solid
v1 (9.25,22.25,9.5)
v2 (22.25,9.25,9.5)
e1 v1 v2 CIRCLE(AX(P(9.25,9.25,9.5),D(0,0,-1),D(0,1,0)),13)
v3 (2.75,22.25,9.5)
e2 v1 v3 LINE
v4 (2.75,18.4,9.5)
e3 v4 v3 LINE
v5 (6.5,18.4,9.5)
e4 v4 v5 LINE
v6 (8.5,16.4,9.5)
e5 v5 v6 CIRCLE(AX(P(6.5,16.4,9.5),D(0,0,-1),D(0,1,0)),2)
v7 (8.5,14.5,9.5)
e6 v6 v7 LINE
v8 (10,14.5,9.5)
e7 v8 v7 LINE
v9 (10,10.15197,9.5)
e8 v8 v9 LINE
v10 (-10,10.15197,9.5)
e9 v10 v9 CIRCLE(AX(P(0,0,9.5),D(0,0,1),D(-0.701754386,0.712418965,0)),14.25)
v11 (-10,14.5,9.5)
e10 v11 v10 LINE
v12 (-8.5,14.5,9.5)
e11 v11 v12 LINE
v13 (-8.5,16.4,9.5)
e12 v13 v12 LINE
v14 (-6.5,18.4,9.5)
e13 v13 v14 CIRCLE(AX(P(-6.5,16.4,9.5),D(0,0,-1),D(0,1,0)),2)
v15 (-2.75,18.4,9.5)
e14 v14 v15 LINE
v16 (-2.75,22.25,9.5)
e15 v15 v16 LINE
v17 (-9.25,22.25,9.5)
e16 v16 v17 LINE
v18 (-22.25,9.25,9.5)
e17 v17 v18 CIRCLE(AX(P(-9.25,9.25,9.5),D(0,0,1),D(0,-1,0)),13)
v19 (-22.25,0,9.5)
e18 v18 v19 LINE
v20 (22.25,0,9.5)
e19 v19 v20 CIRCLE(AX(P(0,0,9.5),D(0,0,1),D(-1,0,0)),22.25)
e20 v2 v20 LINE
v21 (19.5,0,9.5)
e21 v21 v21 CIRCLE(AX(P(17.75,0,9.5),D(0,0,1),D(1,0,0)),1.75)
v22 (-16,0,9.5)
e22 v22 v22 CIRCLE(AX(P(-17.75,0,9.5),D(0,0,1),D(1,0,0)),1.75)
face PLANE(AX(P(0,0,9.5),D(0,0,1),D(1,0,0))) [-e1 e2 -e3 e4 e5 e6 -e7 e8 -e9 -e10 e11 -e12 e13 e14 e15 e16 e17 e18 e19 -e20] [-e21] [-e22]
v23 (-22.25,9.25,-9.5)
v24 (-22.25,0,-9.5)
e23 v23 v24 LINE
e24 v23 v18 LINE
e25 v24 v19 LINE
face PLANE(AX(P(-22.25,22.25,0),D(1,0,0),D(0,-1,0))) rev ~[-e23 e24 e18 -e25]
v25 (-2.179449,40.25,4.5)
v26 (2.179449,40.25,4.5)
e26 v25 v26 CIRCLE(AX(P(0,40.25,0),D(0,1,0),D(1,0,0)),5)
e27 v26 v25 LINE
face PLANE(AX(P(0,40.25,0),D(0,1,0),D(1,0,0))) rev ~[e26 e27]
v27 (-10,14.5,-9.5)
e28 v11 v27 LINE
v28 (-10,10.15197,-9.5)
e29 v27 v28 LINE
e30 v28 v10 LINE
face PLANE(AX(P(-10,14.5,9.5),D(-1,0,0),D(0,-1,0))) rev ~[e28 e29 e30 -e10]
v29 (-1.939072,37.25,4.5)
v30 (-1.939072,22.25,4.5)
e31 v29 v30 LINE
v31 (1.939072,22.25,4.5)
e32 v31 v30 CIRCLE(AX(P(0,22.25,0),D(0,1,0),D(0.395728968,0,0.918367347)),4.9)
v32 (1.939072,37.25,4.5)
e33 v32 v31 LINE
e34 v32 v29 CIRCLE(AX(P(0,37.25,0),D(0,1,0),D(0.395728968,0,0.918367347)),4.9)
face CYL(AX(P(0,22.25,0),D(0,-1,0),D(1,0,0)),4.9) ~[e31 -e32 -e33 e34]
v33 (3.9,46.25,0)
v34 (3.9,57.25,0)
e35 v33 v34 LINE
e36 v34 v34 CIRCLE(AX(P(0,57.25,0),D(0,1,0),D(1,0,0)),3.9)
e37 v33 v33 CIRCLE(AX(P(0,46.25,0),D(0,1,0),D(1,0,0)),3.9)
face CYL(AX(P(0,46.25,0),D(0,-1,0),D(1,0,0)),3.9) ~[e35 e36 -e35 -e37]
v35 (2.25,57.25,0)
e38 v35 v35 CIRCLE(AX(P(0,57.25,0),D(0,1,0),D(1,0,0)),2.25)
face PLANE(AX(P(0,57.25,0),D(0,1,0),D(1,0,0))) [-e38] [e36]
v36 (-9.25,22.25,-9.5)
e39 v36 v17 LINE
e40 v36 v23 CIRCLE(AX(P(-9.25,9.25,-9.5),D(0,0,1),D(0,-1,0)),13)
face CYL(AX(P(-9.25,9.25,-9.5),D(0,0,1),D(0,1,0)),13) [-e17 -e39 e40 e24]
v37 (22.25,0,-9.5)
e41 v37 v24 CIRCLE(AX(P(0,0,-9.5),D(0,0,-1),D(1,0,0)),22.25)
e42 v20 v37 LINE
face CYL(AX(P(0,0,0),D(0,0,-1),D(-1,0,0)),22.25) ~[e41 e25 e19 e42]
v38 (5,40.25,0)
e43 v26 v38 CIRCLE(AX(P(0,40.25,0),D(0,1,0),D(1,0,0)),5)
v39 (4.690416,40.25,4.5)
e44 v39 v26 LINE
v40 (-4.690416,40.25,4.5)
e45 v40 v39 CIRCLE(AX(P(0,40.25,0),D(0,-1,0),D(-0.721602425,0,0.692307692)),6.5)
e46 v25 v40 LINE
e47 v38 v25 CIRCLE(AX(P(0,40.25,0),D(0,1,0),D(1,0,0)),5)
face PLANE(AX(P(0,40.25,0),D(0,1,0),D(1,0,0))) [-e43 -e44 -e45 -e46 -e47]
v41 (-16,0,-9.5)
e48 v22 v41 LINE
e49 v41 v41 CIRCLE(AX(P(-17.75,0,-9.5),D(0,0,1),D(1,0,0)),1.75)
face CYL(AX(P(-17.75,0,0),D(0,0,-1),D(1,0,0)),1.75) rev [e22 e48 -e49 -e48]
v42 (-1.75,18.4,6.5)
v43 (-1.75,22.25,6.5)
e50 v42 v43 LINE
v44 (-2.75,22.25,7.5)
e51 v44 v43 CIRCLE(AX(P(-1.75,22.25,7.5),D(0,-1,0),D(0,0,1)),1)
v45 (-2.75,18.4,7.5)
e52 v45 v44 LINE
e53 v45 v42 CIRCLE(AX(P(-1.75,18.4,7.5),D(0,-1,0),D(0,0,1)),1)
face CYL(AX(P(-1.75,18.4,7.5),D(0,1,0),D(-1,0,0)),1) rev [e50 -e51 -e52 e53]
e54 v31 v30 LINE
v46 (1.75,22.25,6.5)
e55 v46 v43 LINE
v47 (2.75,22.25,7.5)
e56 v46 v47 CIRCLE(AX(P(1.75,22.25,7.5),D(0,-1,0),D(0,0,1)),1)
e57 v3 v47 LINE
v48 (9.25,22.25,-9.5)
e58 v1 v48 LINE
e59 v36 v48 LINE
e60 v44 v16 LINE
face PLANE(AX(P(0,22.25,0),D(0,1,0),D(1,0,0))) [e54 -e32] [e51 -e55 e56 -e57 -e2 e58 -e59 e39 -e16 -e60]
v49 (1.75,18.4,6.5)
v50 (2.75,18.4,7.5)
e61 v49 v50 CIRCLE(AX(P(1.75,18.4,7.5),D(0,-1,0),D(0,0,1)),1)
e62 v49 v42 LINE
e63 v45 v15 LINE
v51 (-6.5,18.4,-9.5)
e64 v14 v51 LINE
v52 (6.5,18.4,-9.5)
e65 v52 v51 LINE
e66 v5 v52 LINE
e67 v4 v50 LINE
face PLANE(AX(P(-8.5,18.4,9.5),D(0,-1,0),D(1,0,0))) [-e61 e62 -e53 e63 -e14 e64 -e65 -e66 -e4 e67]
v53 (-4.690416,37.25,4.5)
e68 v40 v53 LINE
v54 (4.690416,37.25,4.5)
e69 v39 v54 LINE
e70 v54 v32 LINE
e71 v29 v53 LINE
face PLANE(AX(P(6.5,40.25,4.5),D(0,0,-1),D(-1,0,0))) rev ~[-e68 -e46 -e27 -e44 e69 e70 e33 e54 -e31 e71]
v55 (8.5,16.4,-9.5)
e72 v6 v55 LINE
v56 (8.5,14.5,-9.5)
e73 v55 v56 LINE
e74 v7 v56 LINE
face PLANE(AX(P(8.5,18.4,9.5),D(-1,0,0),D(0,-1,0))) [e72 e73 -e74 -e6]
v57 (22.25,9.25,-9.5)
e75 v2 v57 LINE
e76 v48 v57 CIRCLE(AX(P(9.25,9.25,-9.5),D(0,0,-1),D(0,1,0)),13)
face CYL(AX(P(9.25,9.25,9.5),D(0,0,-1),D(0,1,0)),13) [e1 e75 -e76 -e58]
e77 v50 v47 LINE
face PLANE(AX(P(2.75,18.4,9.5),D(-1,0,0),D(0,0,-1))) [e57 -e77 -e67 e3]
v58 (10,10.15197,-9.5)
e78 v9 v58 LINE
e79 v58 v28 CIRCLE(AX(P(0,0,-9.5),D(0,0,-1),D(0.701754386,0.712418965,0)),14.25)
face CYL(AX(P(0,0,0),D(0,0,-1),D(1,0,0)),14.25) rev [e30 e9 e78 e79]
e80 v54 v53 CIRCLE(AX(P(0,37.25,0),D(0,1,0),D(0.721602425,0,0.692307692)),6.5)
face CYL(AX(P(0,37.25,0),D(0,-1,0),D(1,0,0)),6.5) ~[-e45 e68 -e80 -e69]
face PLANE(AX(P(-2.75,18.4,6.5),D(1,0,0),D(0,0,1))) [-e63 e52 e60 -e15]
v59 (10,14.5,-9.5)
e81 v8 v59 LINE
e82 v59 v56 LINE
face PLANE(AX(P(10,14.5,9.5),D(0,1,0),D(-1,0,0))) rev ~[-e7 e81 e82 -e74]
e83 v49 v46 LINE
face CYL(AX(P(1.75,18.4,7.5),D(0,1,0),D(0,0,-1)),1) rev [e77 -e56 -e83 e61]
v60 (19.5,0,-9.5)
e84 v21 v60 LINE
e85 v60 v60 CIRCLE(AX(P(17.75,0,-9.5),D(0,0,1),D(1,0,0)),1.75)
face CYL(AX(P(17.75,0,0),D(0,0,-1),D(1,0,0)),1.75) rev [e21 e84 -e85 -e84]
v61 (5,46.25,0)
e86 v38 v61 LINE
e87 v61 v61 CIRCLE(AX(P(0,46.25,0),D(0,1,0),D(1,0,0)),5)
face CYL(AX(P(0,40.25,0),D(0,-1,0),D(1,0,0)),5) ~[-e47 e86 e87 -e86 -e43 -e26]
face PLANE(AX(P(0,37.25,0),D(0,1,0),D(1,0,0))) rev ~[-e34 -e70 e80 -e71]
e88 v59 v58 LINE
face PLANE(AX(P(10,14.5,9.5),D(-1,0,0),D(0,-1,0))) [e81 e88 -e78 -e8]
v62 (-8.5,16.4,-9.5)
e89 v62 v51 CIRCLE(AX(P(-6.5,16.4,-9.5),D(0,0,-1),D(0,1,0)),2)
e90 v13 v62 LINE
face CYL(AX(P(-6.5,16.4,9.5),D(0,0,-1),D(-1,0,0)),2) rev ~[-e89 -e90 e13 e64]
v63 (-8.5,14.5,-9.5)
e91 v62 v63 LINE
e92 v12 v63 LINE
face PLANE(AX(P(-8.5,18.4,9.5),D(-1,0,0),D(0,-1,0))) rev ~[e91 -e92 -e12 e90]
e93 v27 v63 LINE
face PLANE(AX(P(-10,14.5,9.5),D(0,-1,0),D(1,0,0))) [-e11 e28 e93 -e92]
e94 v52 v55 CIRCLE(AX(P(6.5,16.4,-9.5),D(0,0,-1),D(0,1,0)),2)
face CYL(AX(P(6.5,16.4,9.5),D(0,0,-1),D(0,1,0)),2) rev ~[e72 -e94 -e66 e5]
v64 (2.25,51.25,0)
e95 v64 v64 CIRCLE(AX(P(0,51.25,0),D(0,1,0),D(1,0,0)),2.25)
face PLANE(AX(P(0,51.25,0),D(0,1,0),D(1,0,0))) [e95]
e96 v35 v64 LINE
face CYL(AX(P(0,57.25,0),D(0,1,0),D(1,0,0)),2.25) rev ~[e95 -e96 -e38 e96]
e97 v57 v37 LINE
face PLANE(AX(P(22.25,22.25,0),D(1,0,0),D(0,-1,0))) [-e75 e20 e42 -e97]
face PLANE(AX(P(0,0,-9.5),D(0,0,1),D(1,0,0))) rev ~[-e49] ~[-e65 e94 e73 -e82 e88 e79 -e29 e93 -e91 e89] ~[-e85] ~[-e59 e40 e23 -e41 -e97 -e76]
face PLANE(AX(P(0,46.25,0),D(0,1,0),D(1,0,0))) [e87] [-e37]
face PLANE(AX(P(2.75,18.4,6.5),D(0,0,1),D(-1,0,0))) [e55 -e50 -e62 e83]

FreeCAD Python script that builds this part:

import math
import FreeCAD as App
import Part
import Sketcher

V = App.Vector
Q = App.Units.Quantity


def edges_at(feature, points):
    """Names of the edges that pass closest to the given points."""
    edges = feature.Shape.Edges
    near = lambda p: min(range(len(edges)), key=lambda i: edges[i].distToShape(Part.Vertex(*p))[0])
    return sorted({f"Edge{near(p) + 1}" for p in points})

doc = App.newDocument("Part")
body = doc.addObject("PartDesign::Body", "Body")

# Sketch on XY plane
sketch1 = doc.addObject("Sketcher::SketchObject", "Sketch")
body.addObject(sketch1)
sketch1.AttachmentSupport = (doc.XY_Plane, [""])
sketch1.MapMode = "FlatFace"
sketch1.addGeometry([
    Part.LineSegment(V(22.2, 22.2, 0), V(-22.2, 22.2, 0)),  # 0
    Part.LineSegment(V(-22.2, 22.2, 0), V(-22.2, 0, 0)),  # 1
    Part.ArcOfCircle(Part.Circle(V(0, 0, 0), V(0, 0, 1), 22.2), math.radians(180), math.radians(360)),  # 2
    Part.LineSegment(V(22.2, 0, 0), V(22.2, 22.2, 0)),  # 3
    Part.Circle(V(0, 0, 0), V(0, 0, 1), 14.2),  # 4
    Part.Circle(V(17.8, 0, 0), V(0, 0, 1), 1.8),  # 5
    Part.Circle(V(-17.8, 0, 0), V(0, 0, 1), 1.8),  # 6
], False)
sketch1.addConstraint([
    Sketcher.Constraint("Coincident", 0, 2, 1, 1),
    Sketcher.Constraint("Tangent", 1, 2, 2, 1),
    Sketcher.Constraint("Tangent", 2, 2, 3, 1),
    Sketcher.Constraint("Coincident", 3, 2, 0, 1),
    Sketcher.Constraint("Horizontal", 0),
    Sketcher.Constraint("Vertical", 1),
    Sketcher.Constraint("Vertical", 3),
    Sketcher.Constraint("Coincident", 2, 3, -1, 1),
    Sketcher.Constraint("Coincident", 4, 3, -1, 1),
    Sketcher.Constraint("Equal", 5, 6),
    Sketcher.Constraint("Symmetric", 5, 3, 6, 3, -1, 1),
    Sketcher.Constraint("PointOnObject", 5, 3, -1),
    Sketcher.Constraint("Diameter", 4, Q("28.5 mm")),
    Sketcher.Constraint("Diameter", 5, Q("3.5 mm")),
    Sketcher.Constraint("Radius", 2, Q("22.25 mm")),
    Sketcher.Constraint("DistanceX", 0, 2, 5, 3, Q("40 mm")),
    Sketcher.Constraint("DistanceY", 1, 2, 1, 1, Q("22.25 mm")),
])
pad1 = doc.addObject("PartDesign::Pad", "Pad")
body.addObject(pad1)
pad1.Profile = sketch1
pad1.Length = 19
pad1.Midplane = True

# Sketch on XY plane
sketch2 = doc.addObject("Sketcher::SketchObject", "Sketch001")
body.addObject(sketch2)
sketch2.AttachmentSupport = (doc.XY_Plane, [""])
sketch2.MapMode = "FlatFace"
sketch2.AttachmentOffset = App.Placement(V(0, 0, 9.5), App.Rotation())
sketch2.addGeometry([
    Part.LineSegment(V(-8.5, 18.4, 0), V(-8.5, 14.5, 0)),  # 0
    Part.LineSegment(V(-8.5, 14.5, 0), V(-10, 14.5, 0)),  # 1
    Part.LineSegment(V(-10, 14.5, 0), V(-10, 10, 0)),  # 2
    Part.LineSegment(V(-10, 10, 0), V(-8.5, 10, 0)),  # 3
    Part.LineSegment(V(-8.5, 10, 0), V(-8.5, 11.4, 0)),  # 4
    Part.LineSegment(V(-8.5, 11.4, 0), V(8.5, 11.4, 0)),  # 5
    Part.LineSegment(V(8.5, 11.4, 0), V(8.5, 10, 0)),  # 6
    Part.LineSegment(V(8.5, 10, 0), V(10, 10, 0)),  # 7
    Part.LineSegment(V(10, 10, 0), V(10, 14.5, 0)),  # 8
    Part.LineSegment(V(10, 14.5, 0), V(8.5, 14.5, 0)),  # 9
    Part.LineSegment(V(8.5, 14.5, 0), V(8.5, 18.4, 0)),  # 10
    Part.LineSegment(V(8.5, 18.4, 0), V(-8.5, 18.4, 0)),  # 11
], False)
sketch2.addConstraint([
    Sketcher.Constraint("Coincident", 0, 2, 1, 1),
    Sketcher.Constraint("Coincident", 1, 2, 2, 1),
    Sketcher.Constraint("Coincident", 2, 2, 3, 1),
    Sketcher.Constraint("Coincident", 3, 2, 4, 1),
    Sketcher.Constraint("Coincident", 4, 2, 5, 1),
    Sketcher.Constraint("Coincident", 5, 2, 6, 1),
    Sketcher.Constraint("Coincident", 6, 2, 7, 1),
    Sketcher.Constraint("Coincident", 7, 2, 8, 1),
    Sketcher.Constraint("Coincident", 8, 2, 9, 1),
    Sketcher.Constraint("Coincident", 9, 2, 10, 1),
    Sketcher.Constraint("Coincident", 10, 2, 11, 1),
    Sketcher.Constraint("Coincident", 11, 2, 0, 1),
    Sketcher.Constraint("Vertical", 0),
    Sketcher.Constraint("Horizontal", 1),
    Sketcher.Constraint("Vertical", 2),
    Sketcher.Constraint("Horizontal", 3),
    Sketcher.Constraint("Vertical", 4),
    Sketcher.Constraint("Horizontal", 5),
    Sketcher.Constraint("Vertical", 6),
    Sketcher.Constraint("Horizontal", 7),
    Sketcher.Constraint("Vertical", 8),
    Sketcher.Constraint("Horizontal", 9),
    Sketcher.Constraint("Vertical", 10),
    Sketcher.Constraint("Horizontal", 11),
    Sketcher.Constraint("Symmetric", 3, 2, 6, 2, -2),
    Sketcher.Constraint("Symmetric", 1, 2, 8, 2, -2),
    Sketcher.Constraint("Vertical", 0, 2, 3, 2),
    Sketcher.Constraint("Vertical", 6, 2, 9, 2),
    Sketcher.Constraint("DistanceX", 5, 1, 5, 2, Q("17 mm")),
    Sketcher.Constraint("DistanceX", 1, 2, 1, 1, Q("1.5 mm")),
    Sketcher.Constraint("DistanceY", 2, 2, 2, 1, Q("4.5 mm")),
    Sketcher.Constraint("DistanceY", -1, 1, 2, 2, Q("10 mm")),
    Sketcher.Constraint("DistanceY", 5, 2, 10, 2, Q("7 mm")),
    Sketcher.Constraint("DistanceY", -1, 1, 4, 2, Q("11.4 mm")),
])
pocket1 = doc.addObject("PartDesign::Pocket", "Pocket")
body.addObject(pocket1)
pocket1.Profile = sketch2
pocket1.Length = 19

# Sketch on XZ plane
sketch3 = doc.addObject("Sketcher::SketchObject", "Sketch002")
body.addObject(sketch3)
sketch3.AttachmentSupport = (doc.XZ_Plane, [""])
sketch3.MapMode = "FlatFace"
sketch3.AttachmentOffset = App.Placement(V(0, 0, -18.4), App.Rotation())
sketch3.addGeometry([
    Part.LineSegment(V(2.8, 9.5, 0), V(-2.8, 9.5, 0)),
    Part.LineSegment(V(-2.8, 9.5, 0), V(-2.8, 6.5, 0)),
    Part.LineSegment(V(-2.8, 6.5, 0), V(2.8, 6.5, 0)),
    Part.LineSegment(V(2.8, 6.5, 0), V(2.8, 9.5, 0)),
], False)
sketch3.addConstraint([
    Sketcher.Constraint("Coincident", 0, 2, 1, 1),
    Sketcher.Constraint("Coincident", 1, 2, 2, 1),
    Sketcher.Constraint("Coincident", 2, 2, 3, 1),
    Sketcher.Constraint("Coincident", 3, 2, 0, 1),
    Sketcher.Constraint("Horizontal", 0),
    Sketcher.Constraint("Vertical", 1),
    Sketcher.Constraint("Horizontal", 2),
    Sketcher.Constraint("Vertical", 3),
    Sketcher.Constraint("DistanceY", 1, 2, 1, 1, Q("3 mm")),
    Sketcher.Constraint("DistanceX", 0, 2, 0, 1, Q("5.5 mm")),
    Sketcher.Constraint("DistanceY", -1, 1, 0, 2, Q("9.5 mm")),
    Sketcher.Constraint("DistanceX", 0, 2, -1, 1, Q("2.75 mm")),
])
pocket2 = doc.addObject("PartDesign::Pocket", "Pocket001")
body.addObject(pocket2)
pocket2.Profile = sketch3
pocket2.Length = 4
doc.recompute()

fillet = doc.addObject("PartDesign::Fillet", "Fillet")
body.addObject(fillet)
fillet.Base = (pocket2, edges_at(pocket2, [(-8.5, 18.4, 0), (8.5, 18.4, 0)]))
fillet.Radius = 2
doc.recompute()

fillet2 = doc.addObject("PartDesign::Fillet", "Fillet001")
body.addObject(fillet2)
fillet2.Base = (fillet, edges_at(fillet, [(-2.75, 20.325, 6.5), (2.75, 20.325, 6.5)]))
fillet2.Radius = 1

# Sketch on XZ plane
sketch4 = doc.addObject("Sketcher::SketchObject", "Sketch003")
body.addObject(sketch4)
sketch4.AttachmentSupport = (doc.XZ_Plane, [""])
sketch4.MapMode = "FlatFace"
sketch4.AttachmentOffset = App.Placement(V(0, 0, -22.25), App.Rotation())
sketch4.addGeometry(Part.Circle(V(0, 0, 0), V(0, 0, 1), 4.9), False)
sketch4.addConstraint([
    Sketcher.Constraint("Coincident", 0, 3, -1, 1),
    Sketcher.Constraint("Diameter", 0, Q("9.8 mm")),
])
pad2 = doc.addObject("PartDesign::Pad", "Pad001")
body.addObject(pad2)
pad2.Profile = sketch4
pad2.Length = 15
pad2.Reversed = True

# Sketch on XZ plane
sketch5 = doc.addObject("Sketcher::SketchObject", "Sketch004")
body.addObject(sketch5)
sketch5.AttachmentSupport = (doc.XZ_Plane, [""])
sketch5.MapMode = "FlatFace"
sketch5.AttachmentOffset = App.Placement(V(0, 0, -37.25), App.Rotation())
sketch5.addGeometry(Part.Circle(V(0, 0, 0), V(0, 0, 1), 6), False)
sketch5.addConstraint([
    Sketcher.Constraint("Coincident", 0, 3, -1, 1),
    Sketcher.Constraint("Diameter", 0, Q("13 mm")),
])
pad3 = doc.addObject("PartDesign::Pad", "Pad002")
body.addObject(pad3)
pad3.Profile = sketch5
pad3.Length = 3
pad3.Reversed = True

# Sketch on XZ plane
sketch6 = doc.addObject("Sketcher::SketchObject", "Sketch005")
body.addObject(sketch6)
sketch6.AttachmentSupport = (doc.XZ_Plane, [""])
sketch6.MapMode = "FlatFace"
sketch6.AttachmentOffset = App.Placement(V(0, 0, -40.25), App.Rotation())
sketch6.addGeometry(Part.Circle(V(0, 0, 0), V(0, 0, 1), 5), False)
sketch6.addConstraint([
    Sketcher.Constraint("Coincident", 0, 3, -1, 1),
    Sketcher.Constraint("Diameter", 0, Q("10 mm")),
])
pad4 = doc.addObject("PartDesign::Pad", "Pad003")
body.addObject(pad4)
pad4.Profile = sketch6
pad4.Length = 6
pad4.Reversed = True

# Sketch on XZ plane
sketch7 = doc.addObject("Sketcher::SketchObject", "Sketch006")
body.addObject(sketch7)
sketch7.AttachmentSupport = (doc.XZ_Plane, [""])
sketch7.MapMode = "FlatFace"
sketch7.AttachmentOffset = App.Placement(V(0, 0, -46.25), App.Rotation())
sketch7.addGeometry(Part.Circle(V(0, 0, 0), V(0, 0, 1), 3.9), False)
sketch7.addConstraint([
    Sketcher.Constraint("Coincident", 0, 3, -1, 1),
    Sketcher.Constraint("Diameter", 0, Q("7.8 mm")),
])
pad5 = doc.addObject("PartDesign::Pad", "Pad004")
body.addObject(pad5)
pad5.Profile = sketch7
pad5.Length = 11
pad5.Reversed = True

# Sketch on XZ plane
sketch8 = doc.addObject("Sketcher::SketchObject", "Sketch007")
body.addObject(sketch8)
sketch8.AttachmentSupport = (doc.XZ_Plane, [""])
sketch8.MapMode = "FlatFace"
sketch8.AttachmentOffset = App.Placement(V(0, 0, -57.25), App.Rotation())
sketch8.addGeometry(Part.Circle(V(0, 0, 0), V(0, 0, 1), 2.2), False)
sketch8.addConstraint([
    Sketcher.Constraint("Coincident", 0, 3, -1, 1),
    Sketcher.Constraint("Diameter", 0, Q("4.5 mm")),
])
pocket3 = doc.addObject("PartDesign::Pocket", "Pocket002")
body.addObject(pocket3)
pocket3.Profile = sketch8
pocket3.Length = 6
pocket3.Reversed = True

# Sketch on XZ plane
sketch9 = doc.addObject("Sketcher::SketchObject", "Sketch008")
body.addObject(sketch9)
sketch9.AttachmentSupport = (doc.XZ_Plane, [""])
sketch9.MapMode = "FlatFace"
sketch9.AttachmentOffset = App.Placement(V(0, 0, -40.25), App.Rotation())
sketch9.addGeometry([
    Part.LineSegment(V(6.5, 4.5, 0), V(-6.5, 4.5, 0)),
    Part.LineSegment(V(-6.5, 4.5, 0), V(-6.5, 6.5, 0)),
    Part.LineSegment(V(-6.5, 6.5, 0), V(6.5, 6.5, 0)),
    Part.LineSegment(V(6.5, 6.5, 0), V(6.5, 4.5, 0)),
], False)
sketch9.addConstraint([
    Sketcher.Constraint("Coincident", 0, 2, 1, 1),
    Sketcher.Constraint("Coincident", 1, 2, 2, 1),
    Sketcher.Constraint("Coincident", 2, 2, 3, 1),
    Sketcher.Constraint("Coincident", 3, 2, 0, 1),
    Sketcher.Constraint("Horizontal", 0),
    Sketcher.Constraint("Vertical", 1),
    Sketcher.Constraint("Horizontal", 2),
    Sketcher.Constraint("Vertical", 3),
    Sketcher.Constraint("DistanceY", 1, 1, 1, 2, Q("2 mm")),
    Sketcher.Constraint("DistanceX", 0, 2, -1, 1, Q("6.5 mm")),
    Sketcher.Constraint("DistanceY", -1, 1, 1, 2, Q("6.5 mm")),
    Sketcher.Constraint("DistanceX", -1, 1, 2, 2, Q("6.5 mm")),
])
pocket4 = doc.addObject("PartDesign::Pocket", "Pocket003")
body.addObject(pocket4)
pocket4.Profile = sketch9
pocket4.Length = 18
pocket4.Reversed = True
doc.recompute()

fillet3 = doc.addObject("PartDesign::Fillet", "Fillet002")
body.addObject(fillet3)
fillet3.Base = (pocket4, edges_at(pocket4, [(-22.25, 22.25, 0), (22.25, 22.25, 0)]))
fillet3.Radius = 13

doc.recompute()
